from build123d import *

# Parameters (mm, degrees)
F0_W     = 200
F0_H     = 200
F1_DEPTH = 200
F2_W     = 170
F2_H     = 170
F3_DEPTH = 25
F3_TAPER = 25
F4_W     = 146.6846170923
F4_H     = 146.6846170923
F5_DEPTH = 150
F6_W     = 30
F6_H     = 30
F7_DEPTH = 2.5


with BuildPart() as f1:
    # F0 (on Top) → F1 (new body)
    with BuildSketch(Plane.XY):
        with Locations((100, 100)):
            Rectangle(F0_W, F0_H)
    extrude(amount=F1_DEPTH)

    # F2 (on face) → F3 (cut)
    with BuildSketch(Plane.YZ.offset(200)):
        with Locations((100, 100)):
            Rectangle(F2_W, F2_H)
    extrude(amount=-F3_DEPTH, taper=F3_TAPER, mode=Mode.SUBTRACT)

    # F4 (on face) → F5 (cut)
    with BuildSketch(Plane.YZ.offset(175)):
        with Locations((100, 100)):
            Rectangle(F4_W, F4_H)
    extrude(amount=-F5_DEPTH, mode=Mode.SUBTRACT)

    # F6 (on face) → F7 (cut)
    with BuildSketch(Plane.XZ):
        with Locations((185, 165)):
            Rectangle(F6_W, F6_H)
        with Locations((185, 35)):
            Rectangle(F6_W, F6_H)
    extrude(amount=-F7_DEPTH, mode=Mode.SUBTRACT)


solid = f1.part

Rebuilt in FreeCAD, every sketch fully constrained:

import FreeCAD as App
import Part
import Sketcher

V = App.Vector


def add_polygon(sketch, points):
    """Adds a closed chain of lines whose ends are joined by coincident constraints."""
    first, n = sketch.GeometryCount, len(points)
    for a, b in zip(points, points[1:] + points[:1]):
        sketch.addGeometry(Part.LineSegment(App.Vector(*a, 0), App.Vector(*b, 0)), False)
    for i in range(n):
        sketch.addConstraint(Sketcher.Constraint("Coincident", first + i, 2, first + (i + 1) % n, 1))

doc = App.newDocument("Part")
body = doc.addObject("PartDesign::Body", "Body")

sketch1 = body.newObject("Sketcher::SketchObject", "Sketch")
sketch1.AttachmentSupport = (doc.getObject("XY_Plane"), [""])
sketch1.MapMode = "FlatFace"
add_polygon(sketch1, [(0, 200), (0, 0), (200, 0), (200, 200)])
sketch1.addConstraint(Sketcher.Constraint("Vertical", 0))
sketch1.addConstraint(Sketcher.Constraint("Horizontal", 1))
sketch1.addConstraint(Sketcher.Constraint("Vertical", 2))
sketch1.addConstraint(Sketcher.Constraint("Horizontal", 3))
sketch1.addConstraint(Sketcher.Constraint("Coincident", 0, 2, -1, 1))
sketch1.addConstraint(Sketcher.Constraint("Equal", 3, 0))
sketch1.addConstraint(Sketcher.Constraint("DistanceX", 1, 1, 1, 2, 200.0))
pad1 = body.newObject("PartDesign::Pad", "Pad")
pad1.Profile = sketch1
pad1.Length = 200

sketch2 = body.newObject("Sketcher::SketchObject", "Sketch001")
sketch2.AttachmentSupport = (doc.getObject("YZ_Plane"), [""])
sketch2.MapMode = "FlatFace"
sketch2.AttachmentOffset = App.Placement(V(0, 0, 200), App.Rotation())
add_polygon(sketch2, [(15, 185), (15, 15), (185, 15), (185, 185)])
sketch2.addConstraint(Sketcher.Constraint("Vertical", 0))
sketch2.addConstraint(Sketcher.Constraint("Horizontal", 1))
sketch2.addConstraint(Sketcher.Constraint("Vertical", 2))
sketch2.addConstraint(Sketcher.Constraint("Horizontal", 3))
sketch2.addConstraint(Sketcher.Constraint("Equal", 3, 0))
sketch2.addConstraint(Sketcher.Constraint("DistanceX", 1, 1, 1, 2, 170.0))
sketch2.addConstraint(Sketcher.Constraint("DistanceX", -1, 1, 0, 2, 15.0))
sketch2.addConstraint(Sketcher.Constraint("DistanceY", -1, 1, 0, 2, 15.0))
pocket1 = body.newObject("PartDesign::Pocket", "Pocket")
pocket1.Profile = sketch2
pocket1.Length = 25
pocket1.TaperAngle = -25

sketch3 = body.newObject("Sketcher::SketchObject", "Sketch002")
sketch3.AttachmentSupport = (doc.getObject("YZ_Plane"), [""])
sketch3.MapMode = "FlatFace"
sketch3.AttachmentOffset = App.Placement(V(0, 0, 175), App.Rotation())
add_polygon(sketch3, [(26.657691, 173.342309), (26.657691, 26.657691), (173.342309, 26.657691), (173.342309, 173.342309)])
sketch3.addConstraint(Sketcher.Constraint("Vertical", 0))
sketch3.addConstraint(Sketcher.Constraint("Horizontal", 1))
sketch3.addConstraint(Sketcher.Constraint("Vertical", 2))
sketch3.addConstraint(Sketcher.Constraint("Horizontal", 3))
sketch3.addConstraint(Sketcher.Constraint("Equal", 3, 0))
sketch3.addConstraint(Sketcher.Constraint("DistanceX", 1, 1, 1, 2, 146.684617))
sketch3.addConstraint(Sketcher.Constraint("DistanceX", -1, 1, 0, 2, 26.657691))
sketch3.addConstraint(Sketcher.Constraint("DistanceY", -1, 1, 0, 2, 26.657691))
pocket2 = body.newObject("PartDesign::Pocket", "Pocket001")
pocket2.Profile = sketch3
pocket2.Length = 150

sketch4 = body.newObject("Sketcher::SketchObject", "Sketch003")
sketch4.AttachmentSupport = (doc.getObject("XZ_Plane"), [""])
sketch4.MapMode = "FlatFace"
add_polygon(sketch4, [(170, 180), (170, 150), (200, 150), (200, 180)])
add_polygon(sketch4, [(170, 50), (170, 20), (200, 20), (200, 50)])
sketch4.addConstraint(Sketcher.Constraint("Vertical", 0))
sketch4.addConstraint(Sketcher.Constraint("Horizontal", 1))
sketch4.addConstraint(Sketcher.Constraint("Vertical", 2))
sketch4.addConstraint(Sketcher.Constraint("Horizontal", 3))
sketch4.addConstraint(Sketcher.Constraint("Vertical", 4))
sketch4.addConstraint(Sketcher.Constraint("Horizontal", 5))
sketch4.addConstraint(Sketcher.Constraint("Vertical", 6))
sketch4.addConstraint(Sketcher.Constraint("Horizontal", 7))
sketch4.addConstraint(Sketcher.Constraint("Vertical", 3, 2, 4, 2))
sketch4.addConstraint(Sketcher.Constraint("Vertical", 2, 2, 5, 2))
sketch4.addConstraint(Sketcher.Constraint("Equal", 7, 0))
sketch4.addConstraint(Sketcher.Constraint("Equal", 2, 4))
sketch4.addConstraint(Sketcher.Constraint("DistanceX", 1, 1, 1, 2, 30.0))
sketch4.addConstraint(Sketcher.Constraint("DistanceX", -1, 1, 0, 2, 170.0))
sketch4.addConstraint(Sketcher.Constraint("DistanceY", -1, 1, 0, 2, 150.0))
sketch4.addConstraint(Sketcher.Constraint("DistanceY", -1, 1, 4, 2, 20.0))
pocket3 = body.newObject("PartDesign::Pocket", "Pocket002")
pocket3.Profile = sketch4
pocket3.Length = 2.5

doc.recompute()
